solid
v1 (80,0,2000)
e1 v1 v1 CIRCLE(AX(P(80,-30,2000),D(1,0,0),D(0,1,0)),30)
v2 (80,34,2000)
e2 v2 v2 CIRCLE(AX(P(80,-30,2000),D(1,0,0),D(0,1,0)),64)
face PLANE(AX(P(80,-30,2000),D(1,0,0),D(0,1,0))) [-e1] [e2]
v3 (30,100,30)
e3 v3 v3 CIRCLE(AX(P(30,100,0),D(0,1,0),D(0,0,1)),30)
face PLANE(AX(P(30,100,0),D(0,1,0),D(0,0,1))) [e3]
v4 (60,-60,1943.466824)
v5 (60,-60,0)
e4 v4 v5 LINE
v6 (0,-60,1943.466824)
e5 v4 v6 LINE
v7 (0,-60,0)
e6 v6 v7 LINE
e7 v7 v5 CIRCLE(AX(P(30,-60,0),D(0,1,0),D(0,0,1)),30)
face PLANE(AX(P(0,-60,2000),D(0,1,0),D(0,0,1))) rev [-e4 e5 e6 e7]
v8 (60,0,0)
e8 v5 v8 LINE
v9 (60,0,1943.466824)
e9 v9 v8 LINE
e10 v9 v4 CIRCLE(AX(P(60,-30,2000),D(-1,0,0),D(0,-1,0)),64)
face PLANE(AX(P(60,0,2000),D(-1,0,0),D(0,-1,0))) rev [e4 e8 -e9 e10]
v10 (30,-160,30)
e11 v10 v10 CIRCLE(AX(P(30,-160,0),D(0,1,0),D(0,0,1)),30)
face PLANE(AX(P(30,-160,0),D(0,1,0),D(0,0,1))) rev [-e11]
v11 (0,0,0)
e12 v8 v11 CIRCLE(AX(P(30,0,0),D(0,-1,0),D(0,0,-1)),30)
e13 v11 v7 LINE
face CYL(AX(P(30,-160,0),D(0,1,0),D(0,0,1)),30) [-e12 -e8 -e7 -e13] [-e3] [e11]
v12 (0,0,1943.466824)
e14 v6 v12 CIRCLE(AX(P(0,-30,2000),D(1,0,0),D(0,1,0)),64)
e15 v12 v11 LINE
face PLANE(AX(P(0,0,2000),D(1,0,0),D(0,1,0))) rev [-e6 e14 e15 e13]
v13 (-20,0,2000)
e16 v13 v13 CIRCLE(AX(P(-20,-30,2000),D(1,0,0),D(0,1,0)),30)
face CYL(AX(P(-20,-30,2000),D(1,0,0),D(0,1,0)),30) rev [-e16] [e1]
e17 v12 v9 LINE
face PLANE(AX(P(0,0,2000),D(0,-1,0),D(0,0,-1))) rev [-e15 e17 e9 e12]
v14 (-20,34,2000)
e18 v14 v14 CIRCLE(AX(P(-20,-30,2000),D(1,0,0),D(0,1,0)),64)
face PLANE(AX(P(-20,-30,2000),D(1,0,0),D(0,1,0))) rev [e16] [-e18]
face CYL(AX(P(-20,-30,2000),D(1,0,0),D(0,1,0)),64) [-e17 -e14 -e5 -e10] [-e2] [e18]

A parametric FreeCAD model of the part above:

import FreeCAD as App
import Part
import Sketcher

V = App.Vector
Q = App.Units.Quantity


def add_polygon(sketch, points):
    """Adds a closed chain of lines whose ends are joined by coincident constraints."""
    first, n = sketch.GeometryCount, len(points)
    for a, b in zip(points, points[1:] + points[:1]):
        sketch.addGeometry(Part.LineSegment(App.Vector(*a, 0), App.Vector(*b, 0)), False)
    for i in range(n):
        sketch.addConstraint(Sketcher.Constraint("Coincident", first + i, 2, first + (i + 1) % n, 1))

doc = App.newDocument("Part")
body = doc.addObject("PartDesign::Body", "Body")

sketch1 = body.newObject("Sketcher::SketchObject", "Sketch")
sketch1.AttachmentSupport = (doc.getObject("XY_Plane"), [""])
sketch1.MapMode = "FlatFace"
add_polygon(sketch1, [(0, 0), (0, -60), (60, -60), (60, 0)])
sketch1.addConstraint(Sketcher.Constraint("Vertical", 0))
sketch1.addConstraint(Sketcher.Constraint("Horizontal", 1))
sketch1.addConstraint(Sketcher.Constraint("Vertical", 2))
sketch1.addConstraint(Sketcher.Constraint("Horizontal", 3))
sketch1.addConstraint(Sketcher.Constraint("Coincident", 3, 2, -1, 1))
sketch1.addConstraint(Sketcher.Constraint("Equal", 3, 0))
sketch1.addConstraint(Sketcher.Constraint("DistanceX", 1, 1, 1, 2, Q("60 mm")))
pad1 = body.newObject("PartDesign::Pad", "Pad")
pad1.Profile = sketch1
pad1.Length = 2000

sketch2 = body.newObject("Sketcher::SketchObject", "Sketch001")
sketch2.AttachmentSupport = (doc.getObject("XZ_Plane"), [""])
sketch2.MapMode = "FlatFace"
sketch2.addGeometry(Part.Circle(V(30, 0, 0), V(0, 0, 1), 30), False)
sketch2.addConstraint(Sketcher.Constraint("PointOnObject", 0, 3, -1))
sketch2.addConstraint(Sketcher.Constraint("Diameter", 0, Q("60 mm")))
sketch2.addConstraint(Sketcher.Constraint("DistanceX", -1, 1, 0, 3, Q("30 mm")))
pad2 = body.newObject("PartDesign::Pad", "Pad001")
pad2.Profile = sketch2
pad2.Type = "TwoLengths"
pad2.Length = 100
pad2.Length2 = 160
pad2.Reversed = True

sketch3 = body.newObject("Sketcher::SketchObject", "Sketch002")
sketch3.AttachmentSupport = (doc.getObject("YZ_Plane"), [""])
sketch3.MapMode = "FlatFace"
sketch3.AttachmentOffset = App.Placement(V(0, 0, 60), App.Rotation())
sketch3.addGeometry(Part.Circle(V(-30, 2000, 0), V(0, 0, 1), 64), False)
sketch3.addGeometry(Part.Circle(V(-30, 2000, 0), V(0, 0, 1), 30), False)
sketch3.addConstraint(Sketcher.Constraint("Coincident", 1, 3, 0, 3))
sketch3.addConstraint(Sketcher.Constraint("Diameter", 0, Q("128 mm")))
sketch3.addConstraint(Sketcher.Constraint("Diameter", 1, Q("60 mm")))
sketch3.addConstraint(Sketcher.Constraint("DistanceX", 0, 3, -1, 1, Q("30 mm")))
sketch3.addConstraint(Sketcher.Constraint("DistanceY", -1, 1, 0, 3, Q("2000 mm")))
pad3 = body.newObject("PartDesign::Pad", "Pad002")
pad3.Profile = sketch3
pad3.Type = "TwoLengths"
pad3.Length = 20
pad3.Length2 = 80

sketch4 = body.newObject("Sketcher::SketchObject", "Sketch003")
sketch4.AttachmentSupport = (doc.getObject("YZ_Plane"), [""])
sketch4.MapMode = "FlatFace"
sketch4.AttachmentOffset = App.Placement(V(0, 0, 80), App.Rotation())
sketch4.addGeometry(Part.Circle(V(-30, 2000, 0), V(0, 0, 1), 30), False)
sketch4.addConstraint(Sketcher.Constraint("Diameter", 0, Q("60 mm")))
sketch4.addConstraint(Sketcher.Constraint("DistanceX", 0, 3, -1, 1, Q("30 mm")))
sketch4.addConstraint(Sketcher.Constraint("DistanceY", -1, 1, 0, 3, Q("2000 mm")))
pocket1 = body.newObject("PartDesign::Pocket", "Pocket")
pocket1.Profile = sketch4
pocket1.Length = 360

doc.recompute()
